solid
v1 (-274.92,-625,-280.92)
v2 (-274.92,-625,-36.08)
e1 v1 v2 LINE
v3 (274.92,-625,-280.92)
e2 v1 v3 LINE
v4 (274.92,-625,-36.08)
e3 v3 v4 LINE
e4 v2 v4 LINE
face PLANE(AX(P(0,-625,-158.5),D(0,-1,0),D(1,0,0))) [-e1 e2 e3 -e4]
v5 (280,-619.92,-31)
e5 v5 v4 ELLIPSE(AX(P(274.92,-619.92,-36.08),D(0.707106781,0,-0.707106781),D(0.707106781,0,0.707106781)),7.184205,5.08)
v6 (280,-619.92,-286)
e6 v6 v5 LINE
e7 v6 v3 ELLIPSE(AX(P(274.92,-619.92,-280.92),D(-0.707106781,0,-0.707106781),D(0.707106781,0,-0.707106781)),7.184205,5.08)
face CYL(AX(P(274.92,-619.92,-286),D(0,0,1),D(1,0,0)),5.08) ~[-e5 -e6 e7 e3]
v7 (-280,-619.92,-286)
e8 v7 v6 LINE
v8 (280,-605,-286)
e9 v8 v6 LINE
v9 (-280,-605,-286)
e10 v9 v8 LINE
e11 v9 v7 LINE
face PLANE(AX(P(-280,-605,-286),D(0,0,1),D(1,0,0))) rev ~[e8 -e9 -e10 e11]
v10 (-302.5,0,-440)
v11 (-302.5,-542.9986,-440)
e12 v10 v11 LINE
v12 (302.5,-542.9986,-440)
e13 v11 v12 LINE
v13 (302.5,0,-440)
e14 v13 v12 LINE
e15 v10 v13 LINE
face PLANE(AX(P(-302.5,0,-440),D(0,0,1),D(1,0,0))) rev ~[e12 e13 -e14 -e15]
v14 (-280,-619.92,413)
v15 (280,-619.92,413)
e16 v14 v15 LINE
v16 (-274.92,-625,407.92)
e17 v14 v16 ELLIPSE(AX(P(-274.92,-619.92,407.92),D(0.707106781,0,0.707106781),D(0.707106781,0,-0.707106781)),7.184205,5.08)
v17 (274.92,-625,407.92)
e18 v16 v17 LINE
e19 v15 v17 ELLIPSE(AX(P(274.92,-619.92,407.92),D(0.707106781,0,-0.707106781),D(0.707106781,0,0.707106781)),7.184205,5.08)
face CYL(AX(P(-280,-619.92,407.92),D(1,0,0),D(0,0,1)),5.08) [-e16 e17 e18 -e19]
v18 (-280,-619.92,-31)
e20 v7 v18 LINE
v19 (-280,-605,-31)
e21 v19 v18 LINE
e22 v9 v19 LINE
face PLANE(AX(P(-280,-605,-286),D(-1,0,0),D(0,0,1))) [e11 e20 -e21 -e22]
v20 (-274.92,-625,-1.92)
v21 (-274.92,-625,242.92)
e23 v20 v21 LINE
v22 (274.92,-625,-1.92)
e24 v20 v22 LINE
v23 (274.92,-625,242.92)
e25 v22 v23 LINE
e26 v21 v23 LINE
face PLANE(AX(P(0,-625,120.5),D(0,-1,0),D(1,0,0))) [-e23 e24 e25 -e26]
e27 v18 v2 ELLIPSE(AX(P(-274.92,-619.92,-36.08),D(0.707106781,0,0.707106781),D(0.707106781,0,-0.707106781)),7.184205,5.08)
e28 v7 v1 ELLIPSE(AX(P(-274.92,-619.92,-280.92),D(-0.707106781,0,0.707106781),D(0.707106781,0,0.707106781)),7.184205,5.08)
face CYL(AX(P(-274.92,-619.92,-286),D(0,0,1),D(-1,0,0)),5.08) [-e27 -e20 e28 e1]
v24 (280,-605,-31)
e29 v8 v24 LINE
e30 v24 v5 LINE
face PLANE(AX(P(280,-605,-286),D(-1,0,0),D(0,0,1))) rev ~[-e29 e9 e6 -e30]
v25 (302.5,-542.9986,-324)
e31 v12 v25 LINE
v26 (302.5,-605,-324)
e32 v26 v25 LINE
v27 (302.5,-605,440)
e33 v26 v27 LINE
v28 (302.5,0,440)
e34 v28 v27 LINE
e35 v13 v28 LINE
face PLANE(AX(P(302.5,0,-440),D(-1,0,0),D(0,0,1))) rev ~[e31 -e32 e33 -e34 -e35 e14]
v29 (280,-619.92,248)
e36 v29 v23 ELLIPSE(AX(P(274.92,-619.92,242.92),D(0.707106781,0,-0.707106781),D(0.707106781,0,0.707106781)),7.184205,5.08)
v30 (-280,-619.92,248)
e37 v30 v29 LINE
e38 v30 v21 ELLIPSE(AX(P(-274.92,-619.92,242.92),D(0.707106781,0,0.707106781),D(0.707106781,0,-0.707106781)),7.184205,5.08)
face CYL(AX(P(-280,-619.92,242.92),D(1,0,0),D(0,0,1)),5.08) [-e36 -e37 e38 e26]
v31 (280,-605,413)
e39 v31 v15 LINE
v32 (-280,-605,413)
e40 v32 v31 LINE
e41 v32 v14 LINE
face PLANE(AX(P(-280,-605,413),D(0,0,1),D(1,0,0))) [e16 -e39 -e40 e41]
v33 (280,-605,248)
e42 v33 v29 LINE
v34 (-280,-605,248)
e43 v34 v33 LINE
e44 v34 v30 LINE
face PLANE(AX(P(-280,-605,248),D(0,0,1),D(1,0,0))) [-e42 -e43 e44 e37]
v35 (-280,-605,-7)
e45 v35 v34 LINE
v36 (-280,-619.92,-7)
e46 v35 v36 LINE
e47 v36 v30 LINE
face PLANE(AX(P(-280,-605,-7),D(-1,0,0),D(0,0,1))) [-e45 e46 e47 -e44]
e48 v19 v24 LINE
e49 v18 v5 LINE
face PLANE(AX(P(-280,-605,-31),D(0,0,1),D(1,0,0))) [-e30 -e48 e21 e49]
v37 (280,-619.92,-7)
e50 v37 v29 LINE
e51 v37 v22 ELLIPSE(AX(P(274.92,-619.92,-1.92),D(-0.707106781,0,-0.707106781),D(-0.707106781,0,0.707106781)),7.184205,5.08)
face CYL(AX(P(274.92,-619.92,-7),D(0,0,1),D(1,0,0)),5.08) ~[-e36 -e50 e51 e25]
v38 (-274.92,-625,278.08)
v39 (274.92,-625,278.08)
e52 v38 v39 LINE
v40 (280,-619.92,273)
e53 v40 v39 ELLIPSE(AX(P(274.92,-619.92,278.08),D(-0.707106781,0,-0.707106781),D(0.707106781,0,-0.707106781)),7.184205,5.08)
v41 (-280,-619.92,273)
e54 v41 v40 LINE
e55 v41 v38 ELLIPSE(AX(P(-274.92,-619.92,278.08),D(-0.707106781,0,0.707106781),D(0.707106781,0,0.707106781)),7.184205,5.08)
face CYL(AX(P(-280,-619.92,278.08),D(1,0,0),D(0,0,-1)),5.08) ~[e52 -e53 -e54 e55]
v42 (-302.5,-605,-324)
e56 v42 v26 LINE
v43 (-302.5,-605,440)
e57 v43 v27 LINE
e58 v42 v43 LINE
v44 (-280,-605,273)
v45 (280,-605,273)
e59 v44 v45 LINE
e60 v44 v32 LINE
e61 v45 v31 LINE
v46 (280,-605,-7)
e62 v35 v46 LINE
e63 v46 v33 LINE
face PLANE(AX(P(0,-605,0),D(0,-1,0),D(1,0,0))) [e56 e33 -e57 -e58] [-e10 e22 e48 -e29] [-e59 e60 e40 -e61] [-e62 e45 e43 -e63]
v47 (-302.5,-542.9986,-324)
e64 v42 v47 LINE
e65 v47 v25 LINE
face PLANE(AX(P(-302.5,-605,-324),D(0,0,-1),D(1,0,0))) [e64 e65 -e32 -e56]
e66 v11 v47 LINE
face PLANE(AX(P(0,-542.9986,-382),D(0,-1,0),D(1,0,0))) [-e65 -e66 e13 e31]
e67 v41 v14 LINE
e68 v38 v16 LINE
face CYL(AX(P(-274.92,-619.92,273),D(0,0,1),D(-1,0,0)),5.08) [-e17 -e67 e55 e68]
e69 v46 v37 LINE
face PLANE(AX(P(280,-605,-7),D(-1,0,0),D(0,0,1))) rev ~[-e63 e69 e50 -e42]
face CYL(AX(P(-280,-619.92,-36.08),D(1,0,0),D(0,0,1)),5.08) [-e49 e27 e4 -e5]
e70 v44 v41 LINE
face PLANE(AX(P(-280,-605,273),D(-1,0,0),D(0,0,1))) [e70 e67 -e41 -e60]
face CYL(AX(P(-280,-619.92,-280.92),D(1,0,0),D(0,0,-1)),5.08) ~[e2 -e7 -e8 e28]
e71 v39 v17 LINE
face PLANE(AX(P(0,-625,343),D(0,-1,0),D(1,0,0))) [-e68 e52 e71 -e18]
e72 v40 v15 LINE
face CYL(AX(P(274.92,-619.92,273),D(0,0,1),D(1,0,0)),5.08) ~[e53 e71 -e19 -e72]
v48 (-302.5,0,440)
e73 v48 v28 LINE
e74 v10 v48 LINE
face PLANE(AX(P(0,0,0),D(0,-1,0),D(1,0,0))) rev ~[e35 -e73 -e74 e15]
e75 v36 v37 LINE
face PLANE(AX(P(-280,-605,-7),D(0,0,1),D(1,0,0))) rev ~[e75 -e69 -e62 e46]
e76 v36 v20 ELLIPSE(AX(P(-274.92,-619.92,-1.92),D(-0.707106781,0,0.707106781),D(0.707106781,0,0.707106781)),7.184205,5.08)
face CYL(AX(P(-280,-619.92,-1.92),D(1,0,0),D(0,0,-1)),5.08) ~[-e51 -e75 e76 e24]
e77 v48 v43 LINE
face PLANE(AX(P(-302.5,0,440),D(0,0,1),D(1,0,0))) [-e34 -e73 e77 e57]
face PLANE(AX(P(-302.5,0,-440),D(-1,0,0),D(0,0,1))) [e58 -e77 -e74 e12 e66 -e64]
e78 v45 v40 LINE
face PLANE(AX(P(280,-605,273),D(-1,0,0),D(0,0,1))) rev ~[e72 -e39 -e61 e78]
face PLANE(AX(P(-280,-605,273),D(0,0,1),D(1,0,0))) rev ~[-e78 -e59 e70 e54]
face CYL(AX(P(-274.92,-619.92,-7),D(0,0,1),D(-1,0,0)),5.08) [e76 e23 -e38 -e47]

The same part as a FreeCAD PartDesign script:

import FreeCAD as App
import Part
import Sketcher
Q = App.Units.Quantity


def edges_at(feature, points):
    """Names of the edges that pass closest to the given points."""
    edges = feature.Shape.Edges
    near = lambda p: min(range(len(edges)), key=lambda i: edges[i].distToShape(Part.Vertex(*p))[0])
    return sorted({f"Edge{near(p) + 1}" for p in points})

doc = App.newDocument("Part")
body = doc.addObject("PartDesign::Body", "Body")

# Sketch on XZ plane
sketch1 = doc.addObject("Sketcher::SketchObject", "Sketch")
body.addObject(sketch1)
sketch1.AttachmentSupport = (doc.XZ_Plane, [""])
sketch1.MapMode = "FlatFace"
sketch1.addGeometry(Part.LineSegment(App.Vector(-302, 440, 0), App.Vector(-302, -440, 0)), False)
sketch1.addGeometry(Part.LineSegment(App.Vector(-302, -440, 0), App.Vector(302, -440, 0)), False)
sketch1.addGeometry(Part.LineSegment(App.Vector(302, -440, 0), App.Vector(302, 440, 0)), False)
sketch1.addGeometry(Part.LineSegment(App.Vector(302, 440, 0), App.Vector(-302, 440, 0)), False)
sketch1.addConstraint(Sketcher.Constraint("Coincident", 0, 2, 1, 1))
sketch1.addConstraint(Sketcher.Constraint("Coincident", 1, 2, 2, 1))
sketch1.addConstraint(Sketcher.Constraint("Coincident", 2, 2, 3, 1))
sketch1.addConstraint(Sketcher.Constraint("Coincident", 3, 2, 0, 1))
sketch1.addConstraint(Sketcher.Constraint("Vertical", 0))
sketch1.addConstraint(Sketcher.Constraint("Horizontal", 1))
sketch1.addConstraint(Sketcher.Constraint("Vertical", 2))
sketch1.addConstraint(Sketcher.Constraint("Horizontal", 3))
sketch1.addConstraint(Sketcher.Constraint("Symmetric", 0, 2, 2, 2, -1, 1))
sketch1.addConstraint(Sketcher.Constraint("DistanceX", 1, 1, 1, 2, Q("605 mm")))
sketch1.addConstraint(Sketcher.Constraint("DistanceY", 0, 2, 0, 1, Q("880 mm")))
pad1 = doc.addObject("PartDesign::Pad", "Pad")
body.addObject(pad1)
pad1.Profile = sketch1
pad1.Length = 605

# Sketch on XZ plane
sketch2 = doc.addObject("Sketcher::SketchObject", "Sketch001")
body.addObject(sketch2)
sketch2.AttachmentSupport = (doc.XZ_Plane, [""])
sketch2.MapMode = "FlatFace"
sketch2.AttachmentOffset = App.Placement(App.Vector(0, 0, 605), App.Rotation())
sketch2.addGeometry(Part.LineSegment(App.Vector(-302, -324, 0), App.Vector(-302, -440, 0)), False)
sketch2.addGeometry(Part.LineSegment(App.Vector(-302, -440, 0), App.Vector(302, -440, 0)), False)
sketch2.addGeometry(Part.LineSegment(App.Vector(302, -440, 0), App.Vector(302, -324, 0)), False)
sketch2.addGeometry(Part.LineSegment(App.Vector(302, -324, 0), App.Vector(-302, -324, 0)), False)
sketch2.addConstraint(Sketcher.Constraint("Coincident", 0, 2, 1, 1))
sketch2.addConstraint(Sketcher.Constraint("Coincident", 1, 2, 2, 1))
sketch2.addConstraint(Sketcher.Constraint("Coincident", 2, 2, 3, 1))
sketch2.addConstraint(Sketcher.Constraint("Coincident", 3, 2, 0, 1))
sketch2.addConstraint(Sketcher.Constraint("Vertical", 0))
sketch2.addConstraint(Sketcher.Constraint("Horizontal", 1))
sketch2.addConstraint(Sketcher.Constraint("Vertical", 2))
sketch2.addConstraint(Sketcher.Constraint("Horizontal", 3))
sketch2.addConstraint(Sketcher.Constraint("DistanceX", 1, 1, 1, 2, Q("605 mm")))
sketch2.addConstraint(Sketcher.Constraint("DistanceY", 0, 2, 0, 1, Q("116 mm")))
sketch2.addConstraint(Sketcher.Constraint("DistanceY", 0, 2, -1, 1, Q("440 mm")))
sketch2.addConstraint(Sketcher.Constraint("DistanceX", 0, 2, -1, 1, Q("302.5 mm")))
pocket1 = doc.addObject("PartDesign::Pocket", "Pocket")
body.addObject(pocket1)
pocket1.Profile = sketch2
pocket1.Length = 62.0014

# Sketch on XZ plane
sketch3 = doc.addObject("Sketcher::SketchObject", "Sketch002")
body.addObject(sketch3)
sketch3.AttachmentSupport = (doc.XZ_Plane, [""])
sketch3.MapMode = "FlatFace"
sketch3.AttachmentOffset = App.Placement(App.Vector(0, 0, 605), App.Rotation())
sketch3.addGeometry(Part.LineSegment(App.Vector(-280, 413, 0), App.Vector(-280, 273, 0)), False)
sketch3.addGeometry(Part.LineSegment(App.Vector(-280, 273, 0), App.Vector(280, 273, 0)), False)
sketch3.addGeometry(Part.LineSegment(App.Vector(280, 273, 0), App.Vector(280, 413, 0)), False)
sketch3.addGeometry(Part.LineSegment(App.Vector(280, 413, 0), App.Vector(-280, 413, 0)), False)
sketch3.addConstraint(Sketcher.Constraint("Coincident", 0, 2, 1, 1))
sketch3.addConstraint(Sketcher.Constraint("Coincident", 1, 2, 2, 1))
sketch3.addConstraint(Sketcher.Constraint("Coincident", 2, 2, 3, 1))
sketch3.addConstraint(Sketcher.Constraint("Coincident", 3, 2, 0, 1))
sketch3.addConstraint(Sketcher.Constraint("Vertical", 0))
sketch3.addConstraint(Sketcher.Constraint("Horizontal", 1))
sketch3.addConstraint(Sketcher.Constraint("Vertical", 2))
sketch3.addConstraint(Sketcher.Constraint("Horizontal", 3))
sketch3.addConstraint(Sketcher.Constraint("DistanceX", 1, 1, 1, 2, Q("560 mm")))
sketch3.addConstraint(Sketcher.Constraint("DistanceY", 0, 2, 0, 1, Q("140 mm")))
sketch3.addConstraint(Sketcher.Constraint("DistanceX", 0, 2, -1, 1, Q("280 mm")))
sketch3.addConstraint(Sketcher.Constraint("DistanceY", -1, 1, 0, 2, Q("273 mm")))
pad2 = doc.addObject("PartDesign::Pad", "Pad001")
body.addObject(pad2)
pad2.Profile = sketch3
pad2.Length = 20

# Sketch on XZ plane
sketch4 = doc.addObject("Sketcher::SketchObject", "Sketch003")
body.addObject(sketch4)
sketch4.AttachmentSupport = (doc.XZ_Plane, [""])
sketch4.MapMode = "FlatFace"
sketch4.AttachmentOffset = App.Placement(App.Vector(0, 0, 605), App.Rotation())
sketch4.addGeometry(Part.LineSegment(App.Vector(-280, 248, 0), App.Vector(-280, -7, 0)), False)
sketch4.addGeometry(Part.LineSegment(App.Vector(-280, -7, 0), App.Vector(280, -7, 0)), False)
sketch4.addGeometry(Part.LineSegment(App.Vector(280, -7, 0), App.Vector(280, 248, 0)), False)
sketch4.addGeometry(Part.LineSegment(App.Vector(280, 248, 0), App.Vector(-280, 248, 0)), False)
sketch4.addConstraint(Sketcher.Constraint("Coincident", 0, 2, 1, 1))
sketch4.addConstraint(Sketcher.Constraint("Coincident", 1, 2, 2, 1))
sketch4.addConstraint(Sketcher.Constraint("Coincident", 2, 2, 3, 1))
sketch4.addConstraint(Sketcher.Constraint("Coincident", 3, 2, 0, 1))
sketch4.addConstraint(Sketcher.Constraint("Vertical", 0))
sketch4.addConstraint(Sketcher.Constraint("Horizontal", 1))
sketch4.addConstraint(Sketcher.Constraint("Vertical", 2))
sketch4.addConstraint(Sketcher.Constraint("Horizontal", 3))
sketch4.addConstraint(Sketcher.Constraint("DistanceX", 1, 1, 1, 2, Q("560 mm")))
sketch4.addConstraint(Sketcher.Constraint("DistanceY", 0, 2, 0, 1, Q("255 mm")))
sketch4.addConstraint(Sketcher.Constraint("DistanceX", 0, 2, -1, 1, Q("280 mm")))
sketch4.addConstraint(Sketcher.Constraint("DistanceY", 0, 2, -1, 1, Q("7 mm")))
pad3 = doc.addObject("PartDesign::Pad", "Pad002")
body.addObject(pad3)
pad3.Profile = sketch4
pad3.Length = 20

# Sketch on XZ plane
sketch5 = doc.addObject("Sketcher::SketchObject", "Sketch004")
body.addObject(sketch5)
sketch5.AttachmentSupport = (doc.XZ_Plane, [""])
sketch5.MapMode = "FlatFace"
sketch5.AttachmentOffset = App.Placement(App.Vector(0, 0, 605), App.Rotation())
sketch5.addGeometry(Part.LineSegment(App.Vector(-280, -31, 0), App.Vector(-280, -286, 0)), False)
sketch5.addGeometry(Part.LineSegment(App.Vector(-280, -286, 0), App.Vector(280, -286, 0)), False)
sketch5.addGeometry(Part.LineSegment(App.Vector(280, -286, 0), App.Vector(280, -31, 0)), False)
sketch5.addGeometry(Part.LineSegment(App.Vector(280, -31, 0), App.Vector(-280, -31, 0)), False)
sketch5.addConstraint(Sketcher.Constraint("Coincident", 0, 2, 1, 1))
sketch5.addConstraint(Sketcher.Constraint("Coincident", 1, 2, 2, 1))
sketch5.addConstraint(Sketcher.Constraint("Coincident", 2, 2, 3, 1))
sketch5.addConstraint(Sketcher.Constraint("Coincident", 3, 2, 0, 1))
sketch5.addConstraint(Sketcher.Constraint("Vertical", 0))
sketch5.addConstraint(Sketcher.Constraint("Horizontal", 1))
sketch5.addConstraint(Sketcher.Constraint("Vertical", 2))
sketch5.addConstraint(Sketcher.Constraint("Horizontal", 3))
sketch5.addConstraint(Sketcher.Constraint("DistanceX", 1, 1, 1, 2, Q("560 mm")))
sketch5.addConstraint(Sketcher.Constraint("DistanceY", 0, 2, 0, 1, Q("255 mm")))
sketch5.addConstraint(Sketcher.Constraint("DistanceX", 0, 2, -1, 1, Q("280 mm")))
sketch5.addConstraint(Sketcher.Constraint("DistanceY", 0, 2, -1, 1, Q("286 mm")))
pad4 = doc.addObject("PartDesign::Pad", "Pad003")
body.addObject(pad4)
pad4.Profile = sketch5
pad4.Length = 20
doc.recompute()

fillet = doc.addObject("PartDesign::Fillet", "Fillet")
body.addObject(fillet)
fillet.Base = (pad4, edges_at(pad4, [
    (0, -625, 413),
    (-280, -625, 343),
    (0, -625, 273),
    (280, -625, 343),
    (0, -625, 248),
    (280, -625, 120.5),
    (-280, -625, 120.5),
    (0, -625, -7),
    (0, -625, -31),
    (-280, -625, -158.5),
    (0, -625, -286),
    (280, -625, -158.5),
]))
fillet.Radius = 5.08

doc.recompute()
